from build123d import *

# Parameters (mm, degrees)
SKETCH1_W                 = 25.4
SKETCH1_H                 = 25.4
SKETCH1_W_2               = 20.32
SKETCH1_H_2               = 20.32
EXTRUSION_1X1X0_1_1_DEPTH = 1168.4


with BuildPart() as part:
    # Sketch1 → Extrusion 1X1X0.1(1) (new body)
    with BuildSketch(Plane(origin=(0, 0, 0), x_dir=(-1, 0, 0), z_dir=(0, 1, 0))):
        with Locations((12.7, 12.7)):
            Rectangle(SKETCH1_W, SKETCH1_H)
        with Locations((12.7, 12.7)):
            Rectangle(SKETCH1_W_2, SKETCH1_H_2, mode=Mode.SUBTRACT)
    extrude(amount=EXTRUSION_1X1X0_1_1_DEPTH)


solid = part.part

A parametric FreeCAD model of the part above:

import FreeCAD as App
import Part
import Sketcher
Q = App.Units.Quantity


def add_polygon(sketch, points):
    """Adds a closed chain of lines whose ends are joined by coincident constraints."""
    first, n = sketch.GeometryCount, len(points)
    for a, b in zip(points, points[1:] + points[:1]):
        sketch.addGeometry(Part.LineSegment(App.Vector(*a, 0), App.Vector(*b, 0)), False)
    for i in range(n):
        sketch.addConstraint(Sketcher.Constraint("Coincident", first + i, 2, first + (i + 1) % n, 1))

doc = App.newDocument("Part")
body = doc.addObject("PartDesign::Body", "Body")

# Sketch on XZ plane
sketch1 = body.newObject("Sketcher::SketchObject", "Sketch")
sketch1.AttachmentSupport = (doc.getObject("XZ_Plane"), [""])
sketch1.MapMode = "FlatFace"
add_polygon(sketch1, [(0, 25), (0, 0), (-25, 0), (-25, 25)])  # lines 0-3
add_polygon(sketch1, [(-23, 3), (-3, 3), (-3, 23), (-23, 23)])  # lines 4-7
sketch1.addConstraint([
    Sketcher.Constraint("Vertical", 0),
    Sketcher.Constraint("Horizontal", 1),
    Sketcher.Constraint("Vertical", 2),
    Sketcher.Constraint("Horizontal", 3),
    Sketcher.Constraint("Horizontal", 4),
    Sketcher.Constraint("Vertical", 5),
    Sketcher.Constraint("Horizontal", 6),
    Sketcher.Constraint("Vertical", 7),
    Sketcher.Constraint("Coincident", 0, 2, -1, 1),
    Sketcher.Constraint("Equal", 3, 0),
    Sketcher.Constraint("Equal", 6, 5),
    Sketcher.Constraint("DistanceX", 1, 2, 1, 1, Q("1 in")),
    Sketcher.Constraint("DistanceX", 4, 1, 4, 2, Q("0.8 in")),
    Sketcher.Constraint("DistanceX", 4, 2, -1, 1, Q("0.1 in")),
    Sketcher.Constraint("DistanceY", -1, 1, 4, 2, Q("0.1 in")),
])
pad1 = body.newObject("PartDesign::Pad", "Pad")
pad1.Profile = sketch1
pad1.Length = Q("46 in")
pad1.Reversed = True

doc.recompute()
